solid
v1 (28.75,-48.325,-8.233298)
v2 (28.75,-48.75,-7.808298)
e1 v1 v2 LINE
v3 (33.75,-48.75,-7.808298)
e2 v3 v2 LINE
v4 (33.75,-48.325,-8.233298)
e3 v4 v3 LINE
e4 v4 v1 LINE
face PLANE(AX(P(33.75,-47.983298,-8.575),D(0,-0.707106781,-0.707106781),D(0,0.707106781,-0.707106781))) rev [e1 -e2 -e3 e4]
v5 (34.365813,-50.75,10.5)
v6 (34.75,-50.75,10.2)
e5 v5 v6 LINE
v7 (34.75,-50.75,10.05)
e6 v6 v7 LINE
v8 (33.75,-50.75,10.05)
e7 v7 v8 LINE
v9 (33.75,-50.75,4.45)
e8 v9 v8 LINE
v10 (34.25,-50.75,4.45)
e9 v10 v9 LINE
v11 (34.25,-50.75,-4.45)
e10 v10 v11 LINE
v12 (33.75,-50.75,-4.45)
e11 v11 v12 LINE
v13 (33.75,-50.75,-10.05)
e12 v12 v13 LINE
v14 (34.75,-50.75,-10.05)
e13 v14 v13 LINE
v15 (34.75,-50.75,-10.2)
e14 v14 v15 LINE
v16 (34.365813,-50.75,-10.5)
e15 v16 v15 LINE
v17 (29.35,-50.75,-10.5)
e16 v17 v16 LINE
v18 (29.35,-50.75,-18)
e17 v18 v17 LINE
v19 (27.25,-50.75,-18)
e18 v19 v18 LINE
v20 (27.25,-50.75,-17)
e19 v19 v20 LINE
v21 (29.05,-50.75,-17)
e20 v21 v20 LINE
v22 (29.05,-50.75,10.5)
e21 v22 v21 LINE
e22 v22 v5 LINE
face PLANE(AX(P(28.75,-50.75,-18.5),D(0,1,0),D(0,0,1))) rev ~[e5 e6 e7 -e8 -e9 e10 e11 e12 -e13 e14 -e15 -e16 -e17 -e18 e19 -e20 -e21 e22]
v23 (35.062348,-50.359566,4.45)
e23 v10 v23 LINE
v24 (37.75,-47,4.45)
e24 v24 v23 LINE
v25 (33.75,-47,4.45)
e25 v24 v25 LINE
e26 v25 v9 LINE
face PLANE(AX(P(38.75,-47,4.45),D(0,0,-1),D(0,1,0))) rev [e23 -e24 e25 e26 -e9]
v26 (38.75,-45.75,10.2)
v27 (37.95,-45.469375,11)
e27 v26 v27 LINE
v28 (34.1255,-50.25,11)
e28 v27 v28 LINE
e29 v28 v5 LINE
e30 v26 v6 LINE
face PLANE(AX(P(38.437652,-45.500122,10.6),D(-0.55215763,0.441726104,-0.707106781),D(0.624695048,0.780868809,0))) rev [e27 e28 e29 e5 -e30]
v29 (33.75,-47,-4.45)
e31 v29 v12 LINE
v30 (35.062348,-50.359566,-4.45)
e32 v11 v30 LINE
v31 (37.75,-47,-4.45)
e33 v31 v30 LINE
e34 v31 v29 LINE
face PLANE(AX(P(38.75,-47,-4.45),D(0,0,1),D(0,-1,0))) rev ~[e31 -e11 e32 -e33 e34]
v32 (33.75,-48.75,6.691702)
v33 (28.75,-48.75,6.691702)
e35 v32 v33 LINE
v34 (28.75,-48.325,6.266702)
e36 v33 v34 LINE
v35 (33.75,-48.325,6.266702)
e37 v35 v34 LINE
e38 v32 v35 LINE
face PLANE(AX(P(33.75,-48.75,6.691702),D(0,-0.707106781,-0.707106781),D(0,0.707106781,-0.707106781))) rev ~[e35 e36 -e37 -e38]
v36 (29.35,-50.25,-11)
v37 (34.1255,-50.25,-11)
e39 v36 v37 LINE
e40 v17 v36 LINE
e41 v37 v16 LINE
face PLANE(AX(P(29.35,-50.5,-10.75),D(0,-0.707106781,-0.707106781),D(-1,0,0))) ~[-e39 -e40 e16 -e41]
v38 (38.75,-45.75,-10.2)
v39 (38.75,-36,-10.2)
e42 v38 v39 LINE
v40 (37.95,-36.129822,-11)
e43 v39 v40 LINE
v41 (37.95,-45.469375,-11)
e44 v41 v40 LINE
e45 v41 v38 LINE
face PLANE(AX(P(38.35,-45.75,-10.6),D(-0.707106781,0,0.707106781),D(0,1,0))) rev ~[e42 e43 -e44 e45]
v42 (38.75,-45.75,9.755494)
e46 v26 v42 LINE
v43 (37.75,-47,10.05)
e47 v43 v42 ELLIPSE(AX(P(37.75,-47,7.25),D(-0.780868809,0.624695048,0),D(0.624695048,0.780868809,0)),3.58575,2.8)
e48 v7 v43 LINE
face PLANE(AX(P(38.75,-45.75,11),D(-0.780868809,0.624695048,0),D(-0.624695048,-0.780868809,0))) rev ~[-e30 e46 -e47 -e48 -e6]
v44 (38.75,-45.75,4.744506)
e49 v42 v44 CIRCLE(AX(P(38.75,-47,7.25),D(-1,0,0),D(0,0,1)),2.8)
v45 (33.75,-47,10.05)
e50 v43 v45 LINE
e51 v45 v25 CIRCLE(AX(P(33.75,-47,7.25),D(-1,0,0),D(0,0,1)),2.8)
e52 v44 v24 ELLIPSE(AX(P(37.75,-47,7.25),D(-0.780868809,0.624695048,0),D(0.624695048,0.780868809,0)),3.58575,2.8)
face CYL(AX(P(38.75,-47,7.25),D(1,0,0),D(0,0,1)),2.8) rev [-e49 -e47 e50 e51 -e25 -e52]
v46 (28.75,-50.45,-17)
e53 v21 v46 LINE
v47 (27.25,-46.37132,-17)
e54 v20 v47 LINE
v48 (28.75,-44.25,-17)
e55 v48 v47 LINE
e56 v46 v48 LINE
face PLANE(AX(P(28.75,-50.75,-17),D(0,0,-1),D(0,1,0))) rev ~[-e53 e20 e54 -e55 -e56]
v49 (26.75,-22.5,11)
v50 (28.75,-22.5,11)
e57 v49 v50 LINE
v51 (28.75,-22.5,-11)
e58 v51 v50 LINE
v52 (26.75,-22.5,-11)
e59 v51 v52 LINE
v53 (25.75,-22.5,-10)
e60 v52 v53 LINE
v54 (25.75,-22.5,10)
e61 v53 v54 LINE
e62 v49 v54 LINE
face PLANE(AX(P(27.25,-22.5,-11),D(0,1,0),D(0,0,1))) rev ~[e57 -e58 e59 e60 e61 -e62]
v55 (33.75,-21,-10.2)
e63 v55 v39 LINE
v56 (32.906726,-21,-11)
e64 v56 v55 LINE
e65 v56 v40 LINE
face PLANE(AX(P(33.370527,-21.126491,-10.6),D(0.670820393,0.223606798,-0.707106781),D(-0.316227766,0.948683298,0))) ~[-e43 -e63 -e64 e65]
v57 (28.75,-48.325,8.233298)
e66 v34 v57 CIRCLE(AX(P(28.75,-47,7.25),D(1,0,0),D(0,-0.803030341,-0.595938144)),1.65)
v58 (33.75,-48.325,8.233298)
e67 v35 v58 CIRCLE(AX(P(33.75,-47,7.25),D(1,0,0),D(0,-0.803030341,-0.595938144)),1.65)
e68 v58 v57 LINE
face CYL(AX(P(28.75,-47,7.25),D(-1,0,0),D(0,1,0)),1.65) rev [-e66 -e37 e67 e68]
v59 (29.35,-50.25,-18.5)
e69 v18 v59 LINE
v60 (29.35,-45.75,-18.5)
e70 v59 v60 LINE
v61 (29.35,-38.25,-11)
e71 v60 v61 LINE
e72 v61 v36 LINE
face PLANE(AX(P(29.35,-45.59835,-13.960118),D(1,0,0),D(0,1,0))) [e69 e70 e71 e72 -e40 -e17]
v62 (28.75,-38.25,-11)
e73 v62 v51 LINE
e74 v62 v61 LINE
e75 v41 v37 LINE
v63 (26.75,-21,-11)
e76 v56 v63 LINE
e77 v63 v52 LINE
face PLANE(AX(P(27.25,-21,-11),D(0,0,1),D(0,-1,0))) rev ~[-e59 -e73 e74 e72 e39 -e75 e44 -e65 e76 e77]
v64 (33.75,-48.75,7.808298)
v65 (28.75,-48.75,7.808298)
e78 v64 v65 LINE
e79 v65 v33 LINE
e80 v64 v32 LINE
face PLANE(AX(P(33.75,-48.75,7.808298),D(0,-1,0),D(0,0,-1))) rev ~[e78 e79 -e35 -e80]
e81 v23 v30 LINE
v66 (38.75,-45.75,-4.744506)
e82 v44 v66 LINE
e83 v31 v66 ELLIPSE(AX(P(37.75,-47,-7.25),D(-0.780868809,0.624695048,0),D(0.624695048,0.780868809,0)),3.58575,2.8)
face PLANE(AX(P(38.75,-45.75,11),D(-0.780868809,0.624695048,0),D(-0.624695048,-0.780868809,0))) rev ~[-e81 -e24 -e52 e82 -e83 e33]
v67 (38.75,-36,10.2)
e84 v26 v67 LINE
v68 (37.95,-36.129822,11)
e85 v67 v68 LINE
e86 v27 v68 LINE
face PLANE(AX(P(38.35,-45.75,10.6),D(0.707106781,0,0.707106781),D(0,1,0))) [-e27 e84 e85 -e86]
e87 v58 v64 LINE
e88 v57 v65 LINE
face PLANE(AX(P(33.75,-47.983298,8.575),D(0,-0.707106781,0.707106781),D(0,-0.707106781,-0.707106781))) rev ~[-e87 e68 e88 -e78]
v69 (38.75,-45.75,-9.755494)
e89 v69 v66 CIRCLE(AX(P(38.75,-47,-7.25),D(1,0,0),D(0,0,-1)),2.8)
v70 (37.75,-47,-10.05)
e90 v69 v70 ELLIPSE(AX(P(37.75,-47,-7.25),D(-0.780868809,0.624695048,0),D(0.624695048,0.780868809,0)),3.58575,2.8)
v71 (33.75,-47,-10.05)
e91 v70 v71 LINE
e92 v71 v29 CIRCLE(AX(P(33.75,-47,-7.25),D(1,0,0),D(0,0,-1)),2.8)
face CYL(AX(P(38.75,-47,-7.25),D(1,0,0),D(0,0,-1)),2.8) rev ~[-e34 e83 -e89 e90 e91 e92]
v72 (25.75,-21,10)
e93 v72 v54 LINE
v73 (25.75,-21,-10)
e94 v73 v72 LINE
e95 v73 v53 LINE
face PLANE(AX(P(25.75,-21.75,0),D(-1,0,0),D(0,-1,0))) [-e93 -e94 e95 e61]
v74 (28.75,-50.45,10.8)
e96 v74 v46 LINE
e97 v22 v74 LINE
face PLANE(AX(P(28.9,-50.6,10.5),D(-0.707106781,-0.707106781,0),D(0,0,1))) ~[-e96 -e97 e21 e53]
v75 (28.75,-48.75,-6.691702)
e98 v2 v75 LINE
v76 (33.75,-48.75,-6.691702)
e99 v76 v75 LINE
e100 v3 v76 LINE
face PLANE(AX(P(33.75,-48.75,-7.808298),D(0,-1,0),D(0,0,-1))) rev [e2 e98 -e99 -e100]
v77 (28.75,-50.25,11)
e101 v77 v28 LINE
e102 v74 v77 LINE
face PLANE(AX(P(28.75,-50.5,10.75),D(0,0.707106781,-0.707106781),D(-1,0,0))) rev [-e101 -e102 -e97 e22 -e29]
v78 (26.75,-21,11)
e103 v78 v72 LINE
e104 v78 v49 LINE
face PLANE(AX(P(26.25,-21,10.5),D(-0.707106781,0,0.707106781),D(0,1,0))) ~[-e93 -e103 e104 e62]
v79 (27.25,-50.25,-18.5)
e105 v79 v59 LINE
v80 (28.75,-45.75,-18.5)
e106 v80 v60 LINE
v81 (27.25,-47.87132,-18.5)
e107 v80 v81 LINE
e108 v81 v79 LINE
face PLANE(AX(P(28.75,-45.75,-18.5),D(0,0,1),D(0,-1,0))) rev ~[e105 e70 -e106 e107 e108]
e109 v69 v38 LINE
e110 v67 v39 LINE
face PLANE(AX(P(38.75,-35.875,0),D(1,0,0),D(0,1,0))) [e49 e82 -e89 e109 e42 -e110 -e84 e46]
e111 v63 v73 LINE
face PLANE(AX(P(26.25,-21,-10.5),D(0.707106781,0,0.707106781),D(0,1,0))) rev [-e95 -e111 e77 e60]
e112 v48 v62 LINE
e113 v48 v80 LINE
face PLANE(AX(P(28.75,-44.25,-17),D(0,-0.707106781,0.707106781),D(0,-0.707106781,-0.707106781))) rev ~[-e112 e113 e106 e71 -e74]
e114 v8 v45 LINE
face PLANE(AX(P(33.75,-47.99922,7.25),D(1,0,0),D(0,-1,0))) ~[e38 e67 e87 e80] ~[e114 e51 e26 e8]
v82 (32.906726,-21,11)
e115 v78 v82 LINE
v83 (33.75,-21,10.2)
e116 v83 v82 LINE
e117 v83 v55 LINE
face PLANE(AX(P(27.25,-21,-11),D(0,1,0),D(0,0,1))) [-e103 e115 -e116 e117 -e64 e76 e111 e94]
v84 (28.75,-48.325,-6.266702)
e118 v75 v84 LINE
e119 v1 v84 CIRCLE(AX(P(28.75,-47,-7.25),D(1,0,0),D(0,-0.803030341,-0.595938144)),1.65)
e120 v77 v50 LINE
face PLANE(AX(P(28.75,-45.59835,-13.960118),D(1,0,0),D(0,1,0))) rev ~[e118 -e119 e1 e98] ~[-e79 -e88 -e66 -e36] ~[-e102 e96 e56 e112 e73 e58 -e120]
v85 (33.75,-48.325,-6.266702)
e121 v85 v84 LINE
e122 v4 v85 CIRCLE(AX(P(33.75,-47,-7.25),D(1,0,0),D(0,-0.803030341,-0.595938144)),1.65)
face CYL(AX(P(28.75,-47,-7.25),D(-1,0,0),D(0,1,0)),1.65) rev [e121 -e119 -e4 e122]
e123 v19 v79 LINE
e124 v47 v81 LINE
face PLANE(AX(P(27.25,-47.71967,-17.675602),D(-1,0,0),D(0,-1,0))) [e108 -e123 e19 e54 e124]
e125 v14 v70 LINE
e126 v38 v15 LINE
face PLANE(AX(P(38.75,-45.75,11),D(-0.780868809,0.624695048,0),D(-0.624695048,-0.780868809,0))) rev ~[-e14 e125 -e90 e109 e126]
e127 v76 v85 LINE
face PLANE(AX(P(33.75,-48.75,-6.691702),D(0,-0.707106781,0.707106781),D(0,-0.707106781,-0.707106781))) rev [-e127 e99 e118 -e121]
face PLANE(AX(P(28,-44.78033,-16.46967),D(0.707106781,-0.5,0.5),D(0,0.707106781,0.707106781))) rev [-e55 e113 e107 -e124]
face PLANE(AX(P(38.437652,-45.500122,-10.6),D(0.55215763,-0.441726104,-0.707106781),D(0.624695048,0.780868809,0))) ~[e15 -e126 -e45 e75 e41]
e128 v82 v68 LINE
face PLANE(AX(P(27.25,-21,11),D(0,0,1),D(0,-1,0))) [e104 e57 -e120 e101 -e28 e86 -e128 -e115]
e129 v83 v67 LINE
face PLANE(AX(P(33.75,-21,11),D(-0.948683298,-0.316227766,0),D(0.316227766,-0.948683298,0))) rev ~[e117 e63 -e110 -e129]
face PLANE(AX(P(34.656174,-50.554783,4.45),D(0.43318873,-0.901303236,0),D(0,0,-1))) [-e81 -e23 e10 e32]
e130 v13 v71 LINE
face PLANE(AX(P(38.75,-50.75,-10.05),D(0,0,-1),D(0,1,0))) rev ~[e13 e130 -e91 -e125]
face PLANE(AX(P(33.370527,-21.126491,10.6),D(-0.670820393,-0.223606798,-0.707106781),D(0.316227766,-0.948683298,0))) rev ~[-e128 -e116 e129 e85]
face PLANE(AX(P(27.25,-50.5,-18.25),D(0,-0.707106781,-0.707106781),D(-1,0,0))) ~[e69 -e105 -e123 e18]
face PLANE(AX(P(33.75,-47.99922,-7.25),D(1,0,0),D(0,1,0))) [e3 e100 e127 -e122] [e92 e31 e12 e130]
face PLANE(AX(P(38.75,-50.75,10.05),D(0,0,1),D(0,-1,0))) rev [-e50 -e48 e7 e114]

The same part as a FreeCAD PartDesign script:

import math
import FreeCAD as App
import Part
import Sketcher
from FreeCAD import Vector
Q = App.Units.Quantity


def edges_at(feature, points):
    """Names of the edges that pass closest to the given points."""
    edges = feature.Shape.Edges
    near = lambda p: min(range(len(edges)), key=lambda i: edges[i].distToShape(Part.Vertex(*p))[0])
    return sorted({f"Edge{near(p) + 1}" for p in points})


def add_polygon(sketch, points):
    """Adds a closed chain of lines whose ends are joined by coincident constraints."""
    first, n = sketch.GeometryCount, len(points)
    for a, b in zip(points, points[1:] + points[:1]):
        sketch.addGeometry(Part.LineSegment(App.Vector(*a, 0), App.Vector(*b, 0)), False)
    for i in range(n):
        sketch.addConstraint(Sketcher.Constraint("Coincident", first + i, 2, first + (i + 1) % n, 1))

doc = App.newDocument("Part")
params = doc.addObject("Spreadsheet::Sheet", "Params")
for row, (alias, value) in enumerate([
    ("sketch1_diameter", "3.3 mm"),
    ("sketch1_height", "22 mm"),
    ("sketch1_width", "29.75 mm"),
    ("pad1_length", "10 mm"),
    ("sketch2_height", "22 mm"),
    ("sketch2_width", "1.5 mm"),
    ("pad2_length", "1.5 mm"),
    ("sketch3_width", "5 mm"),
    ("sketch3_width2", "12.5 mm"),
    ("pad3_length", "0.6 mm"),
    ("sketch4_width", "5 mm"),
    ("sketch4_width2", "6.5 mm"),
    ("pad4_length", "1.5 mm"),
    ("chamfer_size", "1.5 mm"),
    ("sketch5_radius", "2.8 mm"),
    ("sketch5_width", "3.75 mm"),
    ("pocket1_length", "5 mm"),
    ("sketch6_height", "2.65 mm"),
    ("sketch7_width", "4 mm"),
    ("sketch7_height", "5 mm"),
    ("sketch8_width", "5 mm"),
    ("sketch8_height", "15 mm"),
    ("chamfer2_size", "0.5 mm"),
    ("chamfer3_size", "0.5 mm"),
    ("chamfer4_size", "0.8 mm"),
    ("chamfer5_size", "0.5 mm"),
    ("chamfer6_size", "0.3 mm"),
    ("chamfer7_size", "0.5 mm"),
    ("sketch9_height", "22 mm"),
    ("sketch9_width", "1.5 mm"),
    ("pad5_length", "1.5 mm"),
    ("chamfer8_size", "1 mm"),
], start=1):
    params.set(f"A{row}", alias)
    params.set(f"B{row}", "=" + value)
    params.setAlias(f"B{row}", alias)

body = doc.addObject("PartDesign::Body", "Body")

# Sketch on YZ plane
sketch1 = body.newObject("Sketcher::SketchObject", "Sketch")
sketch1.AttachmentSupport = (doc.getObject("YZ_Plane"), [""])
sketch1.MapMode = "FlatFace"
sketch1.AttachmentOffset = App.Placement(Vector(0, 0, 28.75), App.Rotation())
add_polygon(sketch1, [(-50.8, 11), (-50.8, -11), (-21, -11), (-21, 11)])  # lines 0-3
sketch1.addGeometry(Part.Circle(Vector(-47, -7.2, 0), Vector(0, 0, 1), 1.6), False)  # 4
sketch1.addGeometry(Part.Circle(Vector(-47, 7.2, 0), Vector(0, 0, 1), 1.6), False)  # 5
sketch1.addConstraint([
    Sketcher.Constraint("Vertical", 0),
    Sketcher.Constraint("Horizontal", 1),
    Sketcher.Constraint("Vertical", 2),
    Sketcher.Constraint("Horizontal", 3),
    Sketcher.Constraint("Equal", 4, 5),
    Sketcher.Constraint("Symmetric", 4, 3, 5, 3, -1),
    Sketcher.Constraint("Diameter", 4, 3.3),
    Sketcher.Constraint("DistanceY", 0, 2, 0, 1, 22.0),
    Sketcher.Constraint("DistanceX", 4, 3, -1, 1, 47.0),
    Sketcher.Constraint("DistanceY", 0, 2, -1, 1, 11.0),
    Sketcher.Constraint("DistanceX", 1, 2, -1, 1, 21.0),
    Sketcher.Constraint("DistanceX", 1, 1, 1, 2, 29.75),
    Sketcher.Constraint("DistanceY", 4, 3, 5, 3, 14.5),
])
sketch1.setExpression("Constraints[10]", "Params.sketch1_diameter")
sketch1.setExpression("Constraints[11]", "Params.sketch1_height")
sketch1.setExpression("Constraints[15]", "Params.sketch1_width")
pad1 = body.newObject("PartDesign::Pad", "Pad")
pad1.Profile = sketch1
pad1.setExpression("Length", "Params.pad1_length")

# Sketch on YZ plane
sketch2 = body.newObject("Sketcher::SketchObject", "Sketch001")
sketch2.AttachmentSupport = (doc.getObject("YZ_Plane"), [""])
sketch2.MapMode = "FlatFace"
sketch2.AttachmentOffset = App.Placement(Vector(0, 0, 28.75), App.Rotation())
add_polygon(sketch2, [(-21, 11), (-21, -11), (-22.5, -11), (-22.5, 11)])  # lines 0-3
sketch2.addConstraint([
    Sketcher.Constraint("Vertical", 0),
    Sketcher.Constraint("Horizontal", 1),
    Sketcher.Constraint("Vertical", 2),
    Sketcher.Constraint("Horizontal", 3),
    Sketcher.Constraint("DistanceY", 0, 2, 0, 1, 22.0),
    Sketcher.Constraint("DistanceX", 1, 2, 1, 1, 1.5),
    Sketcher.Constraint("DistanceX", 0, 2, -1, 1, 21.0),
    Sketcher.Constraint("DistanceY", 0, 2, -1, 1, 11.0),
])
sketch2.setExpression("Constraints[8]", "Params.sketch2_height")
sketch2.setExpression("Constraints[9]", "Params.sketch2_width")
pad2 = body.newObject("PartDesign::Pad", "Pad001")
pad2.Profile = sketch2
pad2.setExpression("Length", "Params.pad2_length")
pad2.Reversed = True

# Sketch on YZ plane
sketch3 = body.newObject("Sketcher::SketchObject", "Sketch002")
sketch3.AttachmentSupport = (doc.getObject("YZ_Plane"), [""])
sketch3.MapMode = "FlatFace"
sketch3.AttachmentOffset = App.Placement(Vector(0, 0, 28.75), App.Rotation())
add_polygon(sketch3, [(-51, -18), (-51, -11), (-38, -11), (-46, -18)])  # lines 0-3
sketch3.addConstraint([
    Sketcher.Constraint("Vertical", 0),
    Sketcher.Constraint("Horizontal", 1),
    Sketcher.Constraint("Horizontal", 3),
    Sketcher.Constraint("DistanceX", 3, 2, 3, 1, 5.0),
    Sketcher.Constraint("Angle", 2, Q("-135 deg")),
    Sketcher.Constraint("DistanceX", 1, 1, 1, 2, 12.5),
    Sketcher.Constraint("DistanceY", 0, 2, -1, 1, 11.0),
    Sketcher.Constraint("DistanceX", 0, 2, -1, 1, 50.75),
])
sketch3.setExpression("Constraints[7]", "Params.sketch3_width")
sketch3.setExpression("Constraints[9]", "Params.sketch3_width2")
pad3 = body.newObject("PartDesign::Pad", "Pad002")
pad3.Profile = sketch3
pad3.setExpression("Length", "Params.pad3_length")

# Sketch on YZ plane
sketch4 = body.newObject("Sketcher::SketchObject", "Sketch003")
sketch4.AttachmentSupport = (doc.getObject("YZ_Plane"), [""])
sketch4.MapMode = "FlatFace"
sketch4.AttachmentOffset = App.Placement(Vector(0, 0, 28.75), App.Rotation())
add_polygon(sketch4, [(-50.8, -18.5), (-50.8, -17), (-44.2, -17), (-45.8, -18.5)])  # lines 0-3
sketch4.addConstraint([
    Sketcher.Constraint("Vertical", 0),
    Sketcher.Constraint("Horizontal", 1),
    Sketcher.Constraint("Horizontal", 3),
    Sketcher.Constraint("DistanceX", 3, 2, 3, 1, 5.0),
    Sketcher.Constraint("Angle", 2, Q("-135 deg")),
    Sketcher.Constraint("DistanceX", 1, 1, 1, 2, 6.5),
    Sketcher.Constraint("DistanceY", 0, 2, -1, 1, 17.0),
    Sketcher.Constraint("DistanceX", 0, 2, -1, 1, 50.75),
])
sketch4.setExpression("Constraints[7]", "Params.sketch4_width")
sketch4.setExpression("Constraints[9]", "Params.sketch4_width2")
pad4 = body.newObject("PartDesign::Pad", "Pad003")
pad4.Profile = sketch4
pad4.setExpression("Length", "Params.pad4_length")
pad4.Reversed = True
doc.recompute()

chamfer = body.newObject("PartDesign::Chamfer", "Chamfer")
chamfer.Base = (pad4, edges_at(pad4, [(27.25, -45, -17.75)]))
chamfer.setExpression("Size", "Params.chamfer_size")

# Sketch on YZ plane
sketch5 = body.newObject("Sketcher::SketchObject", "Sketch004")
sketch5.AttachmentSupport = (doc.getObject("YZ_Plane"), [""])
sketch5.MapMode = "FlatFace"
sketch5.AttachmentOffset = App.Placement(Vector(0, 0, 38.75), App.Rotation())
sketch5.addGeometry([
    Part.ArcOfCircle(Part.Circle(Vector(-47, -7.2, 0), Vector(0, 0, 1), 2.8), math.radians(-90), math.radians(90)),
    Part.LineSegment(Vector(-47, -4.5, 0), Vector(-50.8, -4.5, 0)),
    Part.LineSegment(Vector(-50.8, -4.5, 0), Vector(-50.8, -10.1, 0)),
    Part.LineSegment(Vector(-50.8, -10.1, 0), Vector(-47, -10.1, 0)),
], False)
sketch5.addConstraint([
    Sketcher.Constraint("Tangent", 0, 2, 1, 1),
    Sketcher.Constraint("Coincident", 1, 2, 2, 1),
    Sketcher.Constraint("Coincident", 2, 2, 3, 1),
    Sketcher.Constraint("Tangent", 3, 2, 0, 1),
    Sketcher.Constraint("Horizontal", 1),
    Sketcher.Constraint("Vertical", 2),
    Sketcher.Constraint("Horizontal", 3),
    Sketcher.Constraint("Radius", 0, 2.8),
    Sketcher.Constraint("DistanceX", 0, 3, -1, 1, 47.0),
    Sketcher.Constraint("DistanceX", 1, 2, 1, 1, 3.75),
    Sketcher.Constraint("DistanceY", 0, 3, -1, 1, 7.25),
])
sketch5.setExpression("Constraints[7]", "Params.sketch5_radius")
sketch5.setExpression("Constraints[9]", "Params.sketch5_width")
pocket1 = body.newObject("PartDesign::Pocket", "Pocket")
pocket1.Profile = sketch5
pocket1.setExpression("Length", "Params.pocket1_length")
doc.recompute()

mirrored = body.newObject("PartDesign::Mirrored", "Mirrored")
mirrored.Originals = [pocket1]
mirrored.MirrorPlane = (doc.getObject("XY_Plane"), [""])
body.Tip = mirrored

# Sketch on YZ plane
sketch6 = body.newObject("Sketcher::SketchObject", "Sketch005")
sketch6.AttachmentSupport = (doc.getObject("YZ_Plane"), [""])
sketch6.MapMode = "FlatFace"
sketch6.AttachmentOffset = App.Placement(Vector(0, 0, 33.75), App.Rotation())
add_polygon(sketch6, [(-48, 8.6), (-48.8, 7.8), (-48.8, 6.7), (-48, 5.9)])  # lines 0-3
sketch6.addConstraint([
    Sketcher.Constraint("Vertical", 1),
    Sketcher.Constraint("Vertical", 3),
    Sketcher.Constraint("Perpendicular", 0, 2),
    Sketcher.Constraint("Equal", 0, 2),
    Sketcher.Constraint("DistanceY", 3, 1, 3, 2, 2.65),
    Sketcher.Constraint("DistanceX", 0, 2, -1, 1, 48.75),
    Sketcher.Constraint("DistanceY", -1, 1, 2, 2, 5.925),
    Sketcher.Constraint("DistanceY", 0, 2, 3, 2, 0.766702),
])
sketch6.setExpression("Constraints[8]", "Params.sketch6_height")
pocket2 = body.newObject("PartDesign::Pocket", "Pocket001")
pocket2.Profile = sketch6
pocket2.Type = "ThroughAll"
doc.recompute()

mirrored2 = body.newObject("PartDesign::Mirrored", "Mirrored001")
mirrored2.Originals = [pocket2]
mirrored2.MirrorPlane = (doc.getObject("XY_Plane"), [""])
body.Tip = mirrored2

# Sketch on XY plane
sketch7 = body.newObject("Sketcher::SketchObject", "Sketch006")
sketch7.AttachmentSupport = (doc.getObject("XY_Plane"), [""])
sketch7.MapMode = "FlatFace"
sketch7.AttachmentOffset = App.Placement(Vector(0, 0, 11), App.Rotation())
add_polygon(sketch7, [(38.8, -45.8), (34.8, -50.8), (38.8, -50.8)])  # lines 0-2
sketch7.addConstraint([
    Sketcher.Constraint("Horizontal", 1),
    Sketcher.Constraint("Vertical", 2),
    Sketcher.Constraint("DistanceX", 1, 1, 1, 2, 4.0),
    Sketcher.Constraint("DistanceY", 2, 1, 2, 2, 5.0),
    Sketcher.Constraint("DistanceX", -1, 1, 0, 2, 34.75),
    Sketcher.Constraint("DistanceY", 0, 2, -1, 1, 50.75),
])
sketch7.setExpression("Constraints[5]", "Params.sketch7_width")
sketch7.setExpression("Constraints[6]", "Params.sketch7_height")
pocket3 = body.newObject("PartDesign::Pocket", "Pocket002")
pocket3.Profile = sketch7
pocket3.Type = "ThroughAll"

# Sketch on XY plane
sketch8 = body.newObject("Sketcher::SketchObject", "Sketch007")
sketch8.AttachmentSupport = (doc.getObject("XY_Plane"), [""])
sketch8.MapMode = "FlatFace"
sketch8.AttachmentOffset = App.Placement(Vector(0, 0, 11), App.Rotation())
add_polygon(sketch8, [(34, -21), (39, -36), (39, -21)])  # lines 0-2
sketch8.addConstraint([
    Sketcher.Constraint("Vertical", 1),
    Sketcher.Constraint("Horizontal", 2),
    Sketcher.Constraint("DistanceX", 2, 2, 2, 1, 5.0),
    Sketcher.Constraint("DistanceY", 1, 1, 1, 2, 15.0),
    Sketcher.Constraint("DistanceY", 0, 2, -1, 1, 36.0),
    Sketcher.Constraint("DistanceX", -1, 1, 0, 2, 38.75),
])
sketch8.setExpression("Constraints[5]", "Params.sketch8_width")
sketch8.setExpression("Constraints[6]", "Params.sketch8_height")
pocket4 = body.newObject("PartDesign::Pocket", "Pocket003")
pocket4.Profile = sketch8
pocket4.Type = "ThroughAll"
doc.recompute()

chamfer2 = body.newObject("PartDesign::Chamfer", "Chamfer001")
chamfer2.Base = (pocket4, edges_at(pocket4, [(31.75, -50.75, 11)]))
chamfer2.setExpression("Size", "Params.chamfer2_size")
doc.recompute()

chamfer3 = body.newObject("PartDesign::Chamfer", "Chamfer002")
chamfer3.Base = (chamfer2, edges_at(chamfer2, [(32.05, -50.75, -11)]))
chamfer3.setExpression("Size", "Params.chamfer3_size")
doc.recompute()

chamfer4 = body.newObject("PartDesign::Chamfer", "Chamfer003")
chamfer4.Base = (chamfer3, edges_at(chamfer3, [
    (36.95, -48, -11),
    (38.75, -40.875, -11),
    (36.25, -28.5, -11),
    (36.25, -28.5, 11),
    (38.75, -40.875, 11),
    (36.95, -48, 11),
]))
chamfer4.setExpression("Size", "Params.chamfer4_size")
doc.recompute()

chamfer5 = body.newObject("PartDesign::Chamfer", "Chamfer004")
chamfer5.Base = (chamfer4, edges_at(chamfer4, [(34.75, -50.75, 0)]))
chamfer5.setExpression("Size", "Params.chamfer5_size")
doc.recompute()

chamfer6 = body.newObject("PartDesign::Chamfer", "Chamfer005")
chamfer6.Base = (chamfer5, edges_at(chamfer5, [(28.75, -50.75, -3.25)]))
chamfer6.setExpression("Size", "Params.chamfer6_size")
doc.recompute()

chamfer7 = body.newObject("PartDesign::Chamfer", "Chamfer006")
chamfer7.Base = (chamfer6, edges_at(chamfer6, [(28.3, -50.75, -18.5)]))
chamfer7.setExpression("Size", "Params.chamfer7_size")

# Sketch on YZ plane
sketch9 = body.newObject("Sketcher::SketchObject", "Sketch008")
sketch9.AttachmentSupport = (doc.getObject("YZ_Plane"), [""])
sketch9.MapMode = "FlatFace"
sketch9.AttachmentOffset = App.Placement(Vector(0, 0, 27.25), App.Rotation())
add_polygon(sketch9, [(-21, 11), (-21, -11), (-22.5, -11), (-22.5, 11)])  # lines 0-3
sketch9.addConstraint([
    Sketcher.Constraint("Vertical", 0),
    Sketcher.Constraint("Horizontal", 1),
    Sketcher.Constraint("Vertical", 2),
    Sketcher.Constraint("Horizontal", 3),
    Sketcher.Constraint("DistanceY", 0, 2, 0, 1, 22.0),
    Sketcher.Constraint("DistanceX", 1, 2, 1, 1, 1.5),
    Sketcher.Constraint("DistanceX", 0, 2, -1, 1, 21.0),
    Sketcher.Constraint("DistanceY", 0, 2, -1, 1, 11.0),
])
sketch9.setExpression("Constraints[8]", "Params.sketch9_height")
sketch9.setExpression("Constraints[9]", "Params.sketch9_width")
pad5 = body.newObject("PartDesign::Pad", "Pad004")
pad5.Profile = sketch9
pad5.setExpression("Length", "Params.pad5_length")
pad5.Reversed = True
doc.recompute()

chamfer8 = body.newObject("PartDesign::Chamfer", "Chamfer007")
chamfer8.Base = (pad5, edges_at(pad5, [(25.75, -21.75, -11), (25.75, -21.75, 11)]))
chamfer8.setExpression("Size", "Params.chamfer8_size")

doc.recompute()
